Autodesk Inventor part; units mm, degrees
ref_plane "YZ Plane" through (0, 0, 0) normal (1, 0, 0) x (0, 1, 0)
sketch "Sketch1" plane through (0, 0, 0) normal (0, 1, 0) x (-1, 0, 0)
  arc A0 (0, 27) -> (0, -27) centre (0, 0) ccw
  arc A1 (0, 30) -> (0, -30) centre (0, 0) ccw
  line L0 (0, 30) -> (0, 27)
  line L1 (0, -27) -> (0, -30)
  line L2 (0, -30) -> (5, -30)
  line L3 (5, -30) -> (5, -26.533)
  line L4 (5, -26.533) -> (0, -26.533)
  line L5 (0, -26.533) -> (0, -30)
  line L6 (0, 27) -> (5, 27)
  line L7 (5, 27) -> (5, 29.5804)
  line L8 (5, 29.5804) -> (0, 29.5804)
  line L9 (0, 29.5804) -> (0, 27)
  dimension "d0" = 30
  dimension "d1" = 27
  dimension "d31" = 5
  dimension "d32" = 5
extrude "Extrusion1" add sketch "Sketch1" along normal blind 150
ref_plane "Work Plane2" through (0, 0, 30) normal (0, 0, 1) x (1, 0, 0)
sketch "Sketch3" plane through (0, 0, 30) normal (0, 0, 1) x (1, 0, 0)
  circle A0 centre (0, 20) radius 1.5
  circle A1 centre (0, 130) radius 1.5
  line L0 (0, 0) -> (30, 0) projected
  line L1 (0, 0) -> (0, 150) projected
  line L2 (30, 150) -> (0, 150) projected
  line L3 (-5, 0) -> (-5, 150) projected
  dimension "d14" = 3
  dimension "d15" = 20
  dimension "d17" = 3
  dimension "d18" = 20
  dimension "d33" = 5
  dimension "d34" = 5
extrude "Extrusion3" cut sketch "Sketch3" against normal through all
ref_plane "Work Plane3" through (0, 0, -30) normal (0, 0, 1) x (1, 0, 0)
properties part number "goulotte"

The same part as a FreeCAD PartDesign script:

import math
import FreeCAD as App
import Part
import Sketcher
from FreeCAD import Vector

doc = App.newDocument("Part")
body = doc.addObject("PartDesign::Body", "Body")

# Sketch on XZ plane
sketch1 = doc.addObject("Sketcher::SketchObject", "Sketch")
body.addObject(sketch1)
sketch1.AttachmentSupport = (doc.XZ_Plane, [""])
sketch1.MapMode = "FlatFace"
sketch1.addGeometry([
    Part.ArcOfCircle(Part.Circle(Vector(0, 0, 0), Vector(0, 0, 1), 27), math.radians(-90), math.radians(90)),  # 0
    Part.LineSegment(Vector(0, 27, 0), Vector(-5, 27, 0)),  # 1
    Part.LineSegment(Vector(-5, 27, 0), Vector(-5, 29.5804, 0)),  # 2
    Part.LineSegment(Vector(-5, 29.5804, 0), Vector(0, 29.5804, 0)),  # 3
    Part.LineSegment(Vector(0, 29.5804, 0), Vector(0, 30, 0)),  # 4
    Part.ArcOfCircle(Part.Circle(Vector(0, 0, 0), Vector(0, 0, 1), 30), math.radians(-90), math.radians(90)),  # 5
    Part.LineSegment(Vector(0, -30, 0), Vector(-5, -30, 0)),  # 6
    Part.LineSegment(Vector(-5, -30, 0), Vector(-5, -26.533, 0)),  # 7
    Part.LineSegment(Vector(-5, -26.533, 0), Vector(0, -26.533, 0)),  # 8
    Part.LineSegment(Vector(0, -26.533, 0), Vector(0, -27, 0)),  # 9
], False)
sketch1.addConstraint([
    Sketcher.Constraint("Tangent", 0, 2, 1, 1),
    Sketcher.Constraint("Coincident", 1, 2, 2, 1),
    Sketcher.Constraint("Coincident", 2, 2, 3, 1),
    Sketcher.Constraint("Coincident", 3, 2, 4, 1),
    Sketcher.Constraint("Coincident", 4, 2, 5, 2),
    Sketcher.Constraint("Tangent", 5, 1, 6, 1),
    Sketcher.Constraint("Coincident", 6, 2, 7, 1),
    Sketcher.Constraint("Coincident", 7, 2, 8, 1),
    Sketcher.Constraint("Coincident", 8, 2, 9, 1),
    Sketcher.Constraint("Coincident", 9, 2, 0, 1),
    Sketcher.Constraint("Horizontal", 1),
    Sketcher.Constraint("Vertical", 2),
    Sketcher.Constraint("Horizontal", 3),
    Sketcher.Constraint("Vertical", 4),
    Sketcher.Constraint("Horizontal", 6),
    Sketcher.Constraint("Vertical", 7),
    Sketcher.Constraint("Horizontal", 8),
    Sketcher.Constraint("Vertical", 9),
    Sketcher.Constraint("Coincident", 0, 3, -1, 1),
    Sketcher.Constraint("Coincident", 5, 3, -1, 1),
    Sketcher.Constraint("PointOnObject", 3, 2, -2),
    Sketcher.Constraint("PointOnObject", 8, 2, -2),
    Sketcher.Constraint("Vertical", 2, 2, 6, 2),
    Sketcher.Constraint("Radius", 0, 27.0),
    Sketcher.Constraint("Radius", 5, 30.0),
    Sketcher.Constraint("DistanceX", 1, 2, 1, 1, 5.0),
    Sketcher.Constraint("DistanceY", 7, 1, 7, 2, 3.467),
    Sketcher.Constraint("DistanceY", 2, 1, 2, 2, 2.5804),
])
pad1 = doc.addObject("PartDesign::Pad", "Pad")
body.addObject(pad1)
pad1.Profile = sketch1
pad1.Length = 150
pad1.Reversed = True

# Sketch on XY plane
sketch2 = doc.addObject("Sketcher::SketchObject", "Sketch001")
body.addObject(sketch2)
sketch2.AttachmentSupport = (doc.XY_Plane, [""])
sketch2.MapMode = "FlatFace"
sketch2.AttachmentOffset = App.Placement(Vector(0, 0, 30), App.Rotation())
sketch2.addGeometry([
    Part.Circle(Vector(0, 20, 0), Vector(0, 0, 1), 1.5),
    Part.Circle(Vector(0, 130, 0), Vector(0, 0, 1), 1.5),
], False)
sketch2.addConstraint([
    Sketcher.Constraint("Equal", 0, 1),
    Sketcher.Constraint("PointOnObject", 0, 3, -2),
    Sketcher.Constraint("PointOnObject", 1, 3, -2),
    Sketcher.Constraint("Diameter", 0, 3.0),
    Sketcher.Constraint("DistanceY", -1, 1, 0, 3, 20.0),
    Sketcher.Constraint("DistanceY", -1, 1, 1, 3, 130.0),
])
pocket1 = doc.addObject("PartDesign::Pocket", "Pocket")
body.addObject(pocket1)
pocket1.Profile = sketch2
pocket1.Type = "ThroughAll"

doc.recompute()
